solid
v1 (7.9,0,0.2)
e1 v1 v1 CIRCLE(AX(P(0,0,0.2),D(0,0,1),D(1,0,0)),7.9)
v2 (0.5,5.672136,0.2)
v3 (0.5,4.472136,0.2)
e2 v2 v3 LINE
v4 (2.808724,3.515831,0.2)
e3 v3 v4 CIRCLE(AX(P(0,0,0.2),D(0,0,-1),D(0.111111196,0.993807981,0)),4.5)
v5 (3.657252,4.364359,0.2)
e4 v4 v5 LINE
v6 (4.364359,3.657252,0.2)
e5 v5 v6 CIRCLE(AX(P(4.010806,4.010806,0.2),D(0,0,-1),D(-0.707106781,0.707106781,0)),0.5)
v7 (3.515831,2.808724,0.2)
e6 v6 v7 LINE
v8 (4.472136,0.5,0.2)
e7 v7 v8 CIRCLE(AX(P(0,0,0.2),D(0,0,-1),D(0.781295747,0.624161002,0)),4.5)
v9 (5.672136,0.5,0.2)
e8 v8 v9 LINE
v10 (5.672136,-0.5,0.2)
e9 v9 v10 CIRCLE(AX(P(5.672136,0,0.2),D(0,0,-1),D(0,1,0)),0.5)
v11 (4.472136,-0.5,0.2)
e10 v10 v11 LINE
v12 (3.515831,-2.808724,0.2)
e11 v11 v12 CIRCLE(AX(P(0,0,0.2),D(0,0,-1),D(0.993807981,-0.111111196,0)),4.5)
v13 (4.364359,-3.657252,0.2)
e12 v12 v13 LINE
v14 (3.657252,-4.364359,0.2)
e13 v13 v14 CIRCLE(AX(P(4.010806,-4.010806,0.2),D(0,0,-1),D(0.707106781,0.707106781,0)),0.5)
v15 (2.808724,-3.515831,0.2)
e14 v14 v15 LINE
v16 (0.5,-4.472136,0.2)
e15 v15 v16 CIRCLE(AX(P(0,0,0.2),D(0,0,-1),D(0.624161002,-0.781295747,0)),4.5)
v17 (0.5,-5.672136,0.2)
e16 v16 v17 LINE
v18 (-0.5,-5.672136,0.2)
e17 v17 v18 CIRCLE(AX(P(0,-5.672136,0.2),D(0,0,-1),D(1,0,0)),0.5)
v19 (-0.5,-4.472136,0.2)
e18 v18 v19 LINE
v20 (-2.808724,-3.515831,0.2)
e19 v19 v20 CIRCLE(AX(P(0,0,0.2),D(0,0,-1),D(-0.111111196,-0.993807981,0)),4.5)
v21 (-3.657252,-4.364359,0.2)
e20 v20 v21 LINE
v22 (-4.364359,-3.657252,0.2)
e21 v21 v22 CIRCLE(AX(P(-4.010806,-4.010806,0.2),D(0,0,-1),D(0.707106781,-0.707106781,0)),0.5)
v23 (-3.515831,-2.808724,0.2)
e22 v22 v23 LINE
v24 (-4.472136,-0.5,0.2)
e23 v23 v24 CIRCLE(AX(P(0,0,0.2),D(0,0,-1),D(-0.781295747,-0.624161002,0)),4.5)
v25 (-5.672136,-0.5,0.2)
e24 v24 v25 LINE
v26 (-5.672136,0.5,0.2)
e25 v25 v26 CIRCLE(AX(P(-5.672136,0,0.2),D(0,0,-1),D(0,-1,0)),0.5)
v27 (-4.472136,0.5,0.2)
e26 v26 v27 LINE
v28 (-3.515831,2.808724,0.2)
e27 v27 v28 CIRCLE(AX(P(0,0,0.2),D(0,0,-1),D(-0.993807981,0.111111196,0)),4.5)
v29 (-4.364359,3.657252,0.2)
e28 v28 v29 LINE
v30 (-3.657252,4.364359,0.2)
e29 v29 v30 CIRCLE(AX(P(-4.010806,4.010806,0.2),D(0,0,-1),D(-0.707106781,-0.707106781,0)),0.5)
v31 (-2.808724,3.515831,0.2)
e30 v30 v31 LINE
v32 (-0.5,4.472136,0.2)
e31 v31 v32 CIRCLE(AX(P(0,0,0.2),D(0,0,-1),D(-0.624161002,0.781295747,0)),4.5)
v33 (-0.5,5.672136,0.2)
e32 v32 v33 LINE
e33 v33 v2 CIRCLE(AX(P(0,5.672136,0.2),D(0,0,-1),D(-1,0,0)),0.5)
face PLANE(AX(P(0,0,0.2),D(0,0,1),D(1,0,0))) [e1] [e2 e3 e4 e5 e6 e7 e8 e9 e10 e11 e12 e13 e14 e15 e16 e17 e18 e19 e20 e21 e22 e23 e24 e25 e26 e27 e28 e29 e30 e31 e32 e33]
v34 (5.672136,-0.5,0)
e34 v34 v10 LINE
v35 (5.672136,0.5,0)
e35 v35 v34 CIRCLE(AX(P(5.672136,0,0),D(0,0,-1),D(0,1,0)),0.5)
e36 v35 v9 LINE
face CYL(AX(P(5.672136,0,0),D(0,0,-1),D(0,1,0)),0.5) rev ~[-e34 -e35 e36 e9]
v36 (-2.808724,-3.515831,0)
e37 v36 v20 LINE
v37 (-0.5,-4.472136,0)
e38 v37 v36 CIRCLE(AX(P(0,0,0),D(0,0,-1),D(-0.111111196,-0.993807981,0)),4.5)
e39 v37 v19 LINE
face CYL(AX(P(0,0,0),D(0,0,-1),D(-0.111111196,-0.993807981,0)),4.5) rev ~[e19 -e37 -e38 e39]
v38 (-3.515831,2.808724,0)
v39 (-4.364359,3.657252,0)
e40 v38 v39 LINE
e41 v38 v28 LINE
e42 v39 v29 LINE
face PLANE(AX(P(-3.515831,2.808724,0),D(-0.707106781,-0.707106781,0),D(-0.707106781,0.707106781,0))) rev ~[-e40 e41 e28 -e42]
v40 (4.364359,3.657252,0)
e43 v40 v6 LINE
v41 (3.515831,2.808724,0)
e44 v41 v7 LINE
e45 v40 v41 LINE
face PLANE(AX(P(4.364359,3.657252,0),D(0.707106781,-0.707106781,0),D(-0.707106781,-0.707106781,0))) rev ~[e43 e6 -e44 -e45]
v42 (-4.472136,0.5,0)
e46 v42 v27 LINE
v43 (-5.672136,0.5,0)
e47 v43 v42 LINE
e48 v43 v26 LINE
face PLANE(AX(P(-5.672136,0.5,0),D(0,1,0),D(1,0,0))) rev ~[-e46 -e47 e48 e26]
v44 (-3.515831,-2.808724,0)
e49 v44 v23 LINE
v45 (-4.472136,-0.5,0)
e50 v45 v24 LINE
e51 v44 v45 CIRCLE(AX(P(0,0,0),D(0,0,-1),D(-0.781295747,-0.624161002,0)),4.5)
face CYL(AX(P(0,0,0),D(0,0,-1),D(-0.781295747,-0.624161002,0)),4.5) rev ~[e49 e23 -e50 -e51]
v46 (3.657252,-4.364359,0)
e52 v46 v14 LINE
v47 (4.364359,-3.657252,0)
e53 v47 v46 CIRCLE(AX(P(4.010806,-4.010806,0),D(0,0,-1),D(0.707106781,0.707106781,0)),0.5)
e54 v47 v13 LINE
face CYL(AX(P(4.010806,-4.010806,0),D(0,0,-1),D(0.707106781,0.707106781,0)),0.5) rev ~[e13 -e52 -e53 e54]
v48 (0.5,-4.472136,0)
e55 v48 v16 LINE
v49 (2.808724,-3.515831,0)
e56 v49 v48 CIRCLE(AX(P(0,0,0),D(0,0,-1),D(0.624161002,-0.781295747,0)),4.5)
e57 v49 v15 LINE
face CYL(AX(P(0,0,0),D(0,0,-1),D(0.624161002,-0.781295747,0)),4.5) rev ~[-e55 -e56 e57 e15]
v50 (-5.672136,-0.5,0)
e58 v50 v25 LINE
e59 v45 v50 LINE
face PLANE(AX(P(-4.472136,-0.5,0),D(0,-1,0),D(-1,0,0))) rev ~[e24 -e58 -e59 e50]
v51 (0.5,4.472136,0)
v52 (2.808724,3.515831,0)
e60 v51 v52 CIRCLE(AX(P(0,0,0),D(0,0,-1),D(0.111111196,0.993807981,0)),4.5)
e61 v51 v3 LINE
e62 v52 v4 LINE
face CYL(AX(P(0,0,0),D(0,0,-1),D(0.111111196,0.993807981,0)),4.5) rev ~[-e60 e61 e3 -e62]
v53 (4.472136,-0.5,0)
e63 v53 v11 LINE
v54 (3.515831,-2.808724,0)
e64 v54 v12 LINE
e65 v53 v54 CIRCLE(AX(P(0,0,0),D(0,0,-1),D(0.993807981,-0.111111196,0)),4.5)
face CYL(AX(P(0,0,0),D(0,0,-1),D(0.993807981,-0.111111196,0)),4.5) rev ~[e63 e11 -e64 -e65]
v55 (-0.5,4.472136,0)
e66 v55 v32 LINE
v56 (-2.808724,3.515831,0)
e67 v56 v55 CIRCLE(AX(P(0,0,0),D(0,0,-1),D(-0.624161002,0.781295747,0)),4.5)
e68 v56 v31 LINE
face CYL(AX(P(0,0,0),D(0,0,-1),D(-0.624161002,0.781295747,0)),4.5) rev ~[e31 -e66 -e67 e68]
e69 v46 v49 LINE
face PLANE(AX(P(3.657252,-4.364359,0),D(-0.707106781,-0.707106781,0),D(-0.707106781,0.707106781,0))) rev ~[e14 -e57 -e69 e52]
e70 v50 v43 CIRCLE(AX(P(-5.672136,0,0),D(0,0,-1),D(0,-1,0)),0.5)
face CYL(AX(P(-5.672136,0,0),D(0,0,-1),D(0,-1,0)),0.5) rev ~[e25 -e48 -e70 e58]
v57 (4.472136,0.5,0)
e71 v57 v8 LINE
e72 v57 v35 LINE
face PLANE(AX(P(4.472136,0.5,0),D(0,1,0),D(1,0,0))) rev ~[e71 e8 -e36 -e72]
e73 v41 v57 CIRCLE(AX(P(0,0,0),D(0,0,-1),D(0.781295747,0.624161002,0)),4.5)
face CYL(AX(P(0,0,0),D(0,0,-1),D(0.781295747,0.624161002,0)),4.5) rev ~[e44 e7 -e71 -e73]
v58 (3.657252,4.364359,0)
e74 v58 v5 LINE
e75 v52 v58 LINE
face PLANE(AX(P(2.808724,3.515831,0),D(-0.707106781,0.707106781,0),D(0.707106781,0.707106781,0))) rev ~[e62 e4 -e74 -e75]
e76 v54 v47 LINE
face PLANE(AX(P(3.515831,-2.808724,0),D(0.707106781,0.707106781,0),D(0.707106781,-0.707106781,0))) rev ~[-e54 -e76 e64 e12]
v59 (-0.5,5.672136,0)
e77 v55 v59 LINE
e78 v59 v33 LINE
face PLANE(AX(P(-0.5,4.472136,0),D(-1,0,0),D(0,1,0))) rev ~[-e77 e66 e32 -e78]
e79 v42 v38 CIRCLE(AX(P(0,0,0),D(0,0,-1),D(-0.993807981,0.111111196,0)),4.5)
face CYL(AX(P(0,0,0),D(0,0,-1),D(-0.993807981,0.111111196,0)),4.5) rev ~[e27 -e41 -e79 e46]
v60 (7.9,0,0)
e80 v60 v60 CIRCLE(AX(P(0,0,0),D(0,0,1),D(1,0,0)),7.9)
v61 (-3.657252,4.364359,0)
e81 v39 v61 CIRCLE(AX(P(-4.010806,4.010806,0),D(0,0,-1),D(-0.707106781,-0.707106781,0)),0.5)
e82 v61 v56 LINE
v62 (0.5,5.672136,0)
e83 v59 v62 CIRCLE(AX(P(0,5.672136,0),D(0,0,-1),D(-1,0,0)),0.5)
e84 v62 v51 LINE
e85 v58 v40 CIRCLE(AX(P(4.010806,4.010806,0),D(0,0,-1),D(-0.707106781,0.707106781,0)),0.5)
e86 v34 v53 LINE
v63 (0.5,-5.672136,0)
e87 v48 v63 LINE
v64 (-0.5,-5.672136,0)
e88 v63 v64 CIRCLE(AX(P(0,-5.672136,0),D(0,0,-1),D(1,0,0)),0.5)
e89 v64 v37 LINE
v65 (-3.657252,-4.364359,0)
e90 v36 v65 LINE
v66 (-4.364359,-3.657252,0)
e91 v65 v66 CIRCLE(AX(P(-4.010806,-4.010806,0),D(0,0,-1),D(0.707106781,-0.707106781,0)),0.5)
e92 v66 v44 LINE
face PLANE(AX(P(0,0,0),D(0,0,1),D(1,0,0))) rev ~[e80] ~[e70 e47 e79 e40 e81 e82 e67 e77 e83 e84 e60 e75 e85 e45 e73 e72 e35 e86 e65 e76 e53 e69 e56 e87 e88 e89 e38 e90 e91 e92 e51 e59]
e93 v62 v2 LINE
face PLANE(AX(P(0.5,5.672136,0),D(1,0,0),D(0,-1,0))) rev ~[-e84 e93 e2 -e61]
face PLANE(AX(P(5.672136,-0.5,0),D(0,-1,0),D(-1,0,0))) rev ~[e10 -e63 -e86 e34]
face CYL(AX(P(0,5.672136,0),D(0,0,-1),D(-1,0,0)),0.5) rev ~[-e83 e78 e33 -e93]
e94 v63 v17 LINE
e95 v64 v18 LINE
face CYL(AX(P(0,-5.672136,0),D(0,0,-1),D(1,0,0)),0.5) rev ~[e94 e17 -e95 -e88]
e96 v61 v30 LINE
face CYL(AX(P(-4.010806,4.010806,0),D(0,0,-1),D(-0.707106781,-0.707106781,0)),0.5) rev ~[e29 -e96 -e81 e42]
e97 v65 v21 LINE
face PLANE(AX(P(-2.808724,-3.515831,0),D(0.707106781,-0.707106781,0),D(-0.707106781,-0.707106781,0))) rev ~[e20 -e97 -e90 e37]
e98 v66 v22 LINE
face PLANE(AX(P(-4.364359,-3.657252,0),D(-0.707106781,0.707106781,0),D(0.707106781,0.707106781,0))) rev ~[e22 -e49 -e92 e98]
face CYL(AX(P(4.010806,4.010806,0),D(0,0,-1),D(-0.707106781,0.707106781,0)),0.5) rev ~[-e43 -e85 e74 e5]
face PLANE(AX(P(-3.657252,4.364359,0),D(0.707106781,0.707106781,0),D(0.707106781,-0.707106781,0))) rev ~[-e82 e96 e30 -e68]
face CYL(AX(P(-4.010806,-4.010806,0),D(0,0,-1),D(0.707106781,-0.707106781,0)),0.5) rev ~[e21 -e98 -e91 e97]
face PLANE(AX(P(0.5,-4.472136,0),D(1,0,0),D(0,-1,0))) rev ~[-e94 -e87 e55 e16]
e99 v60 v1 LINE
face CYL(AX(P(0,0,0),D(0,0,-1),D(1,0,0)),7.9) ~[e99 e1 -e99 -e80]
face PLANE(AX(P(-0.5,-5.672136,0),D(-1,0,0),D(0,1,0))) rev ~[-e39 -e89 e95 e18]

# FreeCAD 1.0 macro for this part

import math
import FreeCAD as App
import Part
import Sketcher
from FreeCAD import Vector
Q = App.Units.Quantity

doc = App.newDocument("Part")
body = doc.addObject("PartDesign::Body", "Body")

# Sketch on XY plane
sketch1 = doc.addObject("Sketcher::SketchObject", "Sketch")
body.addObject(sketch1)
sketch1.AttachmentSupport = (doc.XY_Plane, [""])
sketch1.MapMode = "FlatFace"
sketch1.addGeometry(Part.Circle(Vector(0, 0, 0), Vector(0, 0, 1), 7.9), False)
sketch1.addGeometry(Part.LineSegment(Vector(-3.7, 4.4, 0), Vector(-2.8, 3.5, 0)), False)
sketch1.addGeometry(Part.ArcOfCircle(Part.Circle(Vector(0, 0, 0), Vector(0, 0, 1), 4.5), math.radians(96), math.radians(129)), False)
sketch1.addGeometry(Part.LineSegment(Vector(-0.5, 4.5, 0), Vector(-0.5, 5.7, 0)), False)
sketch1.addGeometry(Part.ArcOfCircle(Part.Circle(Vector(0, 5.7, 0), Vector(0, 0, 1), 0.5), math.radians(0), math.radians(180)), False)
sketch1.addGeometry(Part.LineSegment(Vector(0.5, 5.7, 0), Vector(0.5, 4.5, 0)), False)
sketch1.addGeometry(Part.ArcOfCircle(Part.Circle(Vector(0, 0, 0), Vector(0, 0, 1), 4.5), math.radians(51), math.radians(84)), False)
sketch1.addGeometry(Part.LineSegment(Vector(2.8, 3.5, 0), Vector(3.7, 4.4, 0)), False)
sketch1.addGeometry(Part.ArcOfCircle(Part.Circle(Vector(4, 4, 0), Vector(0, 0, 1), 0.5), math.radians(-45), math.radians(135)), False)
sketch1.addGeometry(Part.LineSegment(Vector(4.4, 3.7, 0), Vector(3.5, 2.8, 0)), False)
sketch1.addGeometry(Part.ArcOfCircle(Part.Circle(Vector(0, 0, 0), Vector(0, 0, 1), 4.5), math.radians(6), math.radians(39)), False)
sketch1.addGeometry(Part.LineSegment(Vector(4.5, 0.5, 0), Vector(5.7, 0.5, 0)), False)
sketch1.addGeometry(Part.ArcOfCircle(Part.Circle(Vector(5.7, 0, 0), Vector(0, 0, 1), 0.5), math.radians(-90), math.radians(90)), False)
sketch1.addGeometry(Part.LineSegment(Vector(5.7, -0.5, 0), Vector(4.5, -0.5, 0)), False)
sketch1.addGeometry(Part.ArcOfCircle(Part.Circle(Vector(0, 0, 0), Vector(0, 0, 1), 4.5), math.radians(-39), math.radians(-6)), False)
sketch1.addGeometry(Part.LineSegment(Vector(3.5, -2.8, 0), Vector(4.4, -3.7, 0)), False)
sketch1.addGeometry(Part.ArcOfCircle(Part.Circle(Vector(4, -4, 0), Vector(0, 0, 1), 0.5), math.radians(-135), math.radians(45)), False)
sketch1.addGeometry(Part.LineSegment(Vector(3.7, -4.4, 0), Vector(2.8, -3.5, 0)), False)
sketch1.addGeometry(Part.ArcOfCircle(Part.Circle(Vector(0, 0, 0), Vector(0, 0, 1), 4.5), math.radians(-84), math.radians(-51)), False)
sketch1.addGeometry(Part.LineSegment(Vector(0.5, -4.5, 0), Vector(0.5, -5.7, 0)), False)
sketch1.addGeometry(Part.ArcOfCircle(Part.Circle(Vector(0, -5.7, 0), Vector(0, 0, 1), 0.5), math.radians(180), math.radians(360)), False)
sketch1.addGeometry(Part.LineSegment(Vector(-0.5, -5.7, 0), Vector(-0.5, -4.5, 0)), False)
sketch1.addGeometry(Part.ArcOfCircle(Part.Circle(Vector(0, 0, 0), Vector(0, 0, 1), 4.5), math.radians(-129), math.radians(-96)), False)
sketch1.addGeometry(Part.LineSegment(Vector(-2.8, -3.5, 0), Vector(-3.7, -4.4, 0)), False)
sketch1.addGeometry(Part.ArcOfCircle(Part.Circle(Vector(-4, -4, 0), Vector(0, 0, 1), 0.5), math.radians(135), math.radians(315)), False)
sketch1.addGeometry(Part.LineSegment(Vector(-4.4, -3.7, 0), Vector(-3.5, -2.8, 0)), False)
sketch1.addGeometry(Part.ArcOfCircle(Part.Circle(Vector(0, 0, 0), Vector(0, 0, 1), 4.5), math.radians(-174), math.radians(-141)), False)
sketch1.addGeometry(Part.LineSegment(Vector(-4.5, -0.5, 0), Vector(-5.7, -0.5, 0)), False)
sketch1.addGeometry(Part.ArcOfCircle(Part.Circle(Vector(-5.7, 0, 0), Vector(0, 0, 1), 0.5), math.radians(90), math.radians(270)), False)
sketch1.addGeometry(Part.LineSegment(Vector(-5.7, 0.5, 0), Vector(-4.5, 0.5, 0)), False)
sketch1.addGeometry(Part.ArcOfCircle(Part.Circle(Vector(0, 0, 0), Vector(0, 0, 1), 4.5), math.radians(141), math.radians(174)), False)
sketch1.addGeometry(Part.LineSegment(Vector(-3.5, 2.8, 0), Vector(-4.4, 3.7, 0)), False)
sketch1.addGeometry(Part.ArcOfCircle(Part.Circle(Vector(-4, 4, 0), Vector(0, 0, 1), 0.5), math.radians(45), math.radians(225)), False)
sketch1.addConstraint(Sketcher.Constraint("Coincident", 1, 2, 2, 2))
sketch1.addConstraint(Sketcher.Constraint("Coincident", 2, 1, 3, 1))
sketch1.addConstraint(Sketcher.Constraint("Tangent", 3, 2, 4, 2))
sketch1.addConstraint(Sketcher.Constraint("Tangent", 4, 1, 5, 1))
sketch1.addConstraint(Sketcher.Constraint("Coincident", 5, 2, 6, 2))
sketch1.addConstraint(Sketcher.Constraint("Coincident", 6, 1, 7, 1))
sketch1.addConstraint(Sketcher.Constraint("Tangent", 7, 2, 8, 2))
sketch1.addConstraint(Sketcher.Constraint("Tangent", 8, 1, 9, 1))
sketch1.addConstraint(Sketcher.Constraint("Coincident", 9, 2, 10, 2))
sketch1.addConstraint(Sketcher.Constraint("Coincident", 10, 1, 11, 1))
sketch1.addConstraint(Sketcher.Constraint("Tangent", 11, 2, 12, 2))
sketch1.addConstraint(Sketcher.Constraint("Tangent", 12, 1, 13, 1))
sketch1.addConstraint(Sketcher.Constraint("Coincident", 13, 2, 14, 2))
sketch1.addConstraint(Sketcher.Constraint("Coincident", 14, 1, 15, 1))
sketch1.addConstraint(Sketcher.Constraint("Tangent", 15, 2, 16, 2))
sketch1.addConstraint(Sketcher.Constraint("Tangent", 16, 1, 17, 1))
sketch1.addConstraint(Sketcher.Constraint("Coincident", 17, 2, 18, 2))
sketch1.addConstraint(Sketcher.Constraint("Coincident", 18, 1, 19, 1))
sketch1.addConstraint(Sketcher.Constraint("Tangent", 19, 2, 20, 2))
sketch1.addConstraint(Sketcher.Constraint("Tangent", 20, 1, 21, 1))
sketch1.addConstraint(Sketcher.Constraint("Coincident", 21, 2, 22, 2))
sketch1.addConstraint(Sketcher.Constraint("Coincident", 22, 1, 23, 1))
sketch1.addConstraint(Sketcher.Constraint("Tangent", 23, 2, 24, 2))
sketch1.addConstraint(Sketcher.Constraint("Tangent", 24, 1, 25, 1))
sketch1.addConstraint(Sketcher.Constraint("Coincident", 25, 2, 26, 2))
sketch1.addConstraint(Sketcher.Constraint("Coincident", 26, 1, 27, 1))
sketch1.addConstraint(Sketcher.Constraint("Tangent", 27, 2, 28, 2))
sketch1.addConstraint(Sketcher.Constraint("Tangent", 28, 1, 29, 1))
sketch1.addConstraint(Sketcher.Constraint("Coincident", 29, 2, 30, 2))
sketch1.addConstraint(Sketcher.Constraint("Coincident", 30, 1, 31, 1))
sketch1.addConstraint(Sketcher.Constraint("Tangent", 31, 2, 32, 2))
sketch1.addConstraint(Sketcher.Constraint("Tangent", 32, 1, 1, 1))
sketch1.addConstraint(Sketcher.Constraint("Vertical", 3))
sketch1.addConstraint(Sketcher.Constraint("Vertical", 5))
sketch1.addConstraint(Sketcher.Constraint("Horizontal", 11))
sketch1.addConstraint(Sketcher.Constraint("Horizontal", 13))
sketch1.addConstraint(Sketcher.Constraint("Vertical", 19))
sketch1.addConstraint(Sketcher.Constraint("Vertical", 21))
sketch1.addConstraint(Sketcher.Constraint("Horizontal", 27))
sketch1.addConstraint(Sketcher.Constraint("Horizontal", 29))
sketch1.addConstraint(Sketcher.Constraint("Coincident", 0, 3, -1, 1))
sketch1.addConstraint(Sketcher.Constraint("Coincident", 2, 3, -1, 1))
sketch1.addConstraint(Sketcher.Constraint("Coincident", 6, 3, -1, 1))
sketch1.addConstraint(Sketcher.Constraint("Coincident", 10, 3, -1, 1))
sketch1.addConstraint(Sketcher.Constraint("Coincident", 14, 3, -1, 1))
sketch1.addConstraint(Sketcher.Constraint("Coincident", 18, 3, -1, 1))
sketch1.addConstraint(Sketcher.Constraint("Coincident", 22, 3, -1, 1))
sketch1.addConstraint(Sketcher.Constraint("Coincident", 26, 3, -1, 1))
sketch1.addConstraint(Sketcher.Constraint("Coincident", 30, 3, -1, 1))
sketch1.addConstraint(Sketcher.Constraint("Equal", 2, 6))
sketch1.addConstraint(Sketcher.Constraint("Equal", 4, 8))
sketch1.addConstraint(Sketcher.Constraint("Equal", 6, 10))
sketch1.addConstraint(Sketcher.Constraint("Equal", 8, 12))
sketch1.addConstraint(Sketcher.Constraint("Equal", 10, 14))
sketch1.addConstraint(Sketcher.Constraint("Equal", 12, 16))
sketch1.addConstraint(Sketcher.Constraint("Equal", 14, 18))
sketch1.addConstraint(Sketcher.Constraint("Equal", 16, 20))
sketch1.addConstraint(Sketcher.Constraint("Equal", 18, 22))
sketch1.addConstraint(Sketcher.Constraint("Equal", 20, 24))
sketch1.addConstraint(Sketcher.Constraint("Equal", 22, 26))
sketch1.addConstraint(Sketcher.Constraint("Equal", 24, 28))
sketch1.addConstraint(Sketcher.Constraint("Equal", 26, 30))
sketch1.addConstraint(Sketcher.Constraint("Equal", 28, 32))
sketch1.addConstraint(Sketcher.Constraint("Symmetric", 4, 3, 20, 3, -1, 1))
sketch1.addConstraint(Sketcher.Constraint("Symmetric", 8, 3, 24, 3, -1, 1))
sketch1.addConstraint(Sketcher.Constraint("Symmetric", 12, 3, 28, 3, -1, 1))
sketch1.addConstraint(Sketcher.Constraint("Symmetric", 16, 3, 32, 3, -1, 1))
sketch1.addConstraint(Sketcher.Constraint("Symmetric", 16, 3, 24, 3, -2))
sketch1.addConstraint(Sketcher.Constraint("PointOnObject", 4, 3, -2))
sketch1.addConstraint(Sketcher.Constraint("PointOnObject", 12, 3, -1))
sketch1.addConstraint(Sketcher.Constraint("Perpendicular", 1, 7))
sketch1.addConstraint(Sketcher.Constraint("Parallel", 7, 9))
sketch1.addConstraint(Sketcher.Constraint("Perpendicular", 9, 15))
sketch1.addConstraint(Sketcher.Constraint("Parallel", 15, 17))
sketch1.addConstraint(Sketcher.Constraint("Perpendicular", 17, 23))
sketch1.addConstraint(Sketcher.Constraint("Parallel", 23, 25))
sketch1.addConstraint(Sketcher.Constraint("Perpendicular", 25, 31))
sketch1.addConstraint(Sketcher.Constraint("Horizontal", 1, 2, 6, 1))
sketch1.addConstraint(Sketcher.Constraint("Equal", 29, 3))
sketch1.addConstraint(Sketcher.Constraint("Equal", 7, 9))
sketch1.addConstraint(Sketcher.Constraint("Diameter", 0, Q("15.8 mm")))
sketch1.addConstraint(Sketcher.Constraint("Radius", 2, Q("4.5 mm")))
sketch1.addConstraint(Sketcher.Constraint("Radius", 4, Q("0.5 mm")))
sketch1.addConstraint(Sketcher.Constraint("DistanceX", 11, 1, 11, 2, Q("1.2 mm")))
sketch1.addConstraint(Sketcher.Constraint("Distance", 1, Q("1.2 mm")))
pad1 = doc.addObject("PartDesign::Pad", "Pad")
body.addObject(pad1)
pad1.Profile = sketch1
pad1.Length = 0.2

doc.recompute()
